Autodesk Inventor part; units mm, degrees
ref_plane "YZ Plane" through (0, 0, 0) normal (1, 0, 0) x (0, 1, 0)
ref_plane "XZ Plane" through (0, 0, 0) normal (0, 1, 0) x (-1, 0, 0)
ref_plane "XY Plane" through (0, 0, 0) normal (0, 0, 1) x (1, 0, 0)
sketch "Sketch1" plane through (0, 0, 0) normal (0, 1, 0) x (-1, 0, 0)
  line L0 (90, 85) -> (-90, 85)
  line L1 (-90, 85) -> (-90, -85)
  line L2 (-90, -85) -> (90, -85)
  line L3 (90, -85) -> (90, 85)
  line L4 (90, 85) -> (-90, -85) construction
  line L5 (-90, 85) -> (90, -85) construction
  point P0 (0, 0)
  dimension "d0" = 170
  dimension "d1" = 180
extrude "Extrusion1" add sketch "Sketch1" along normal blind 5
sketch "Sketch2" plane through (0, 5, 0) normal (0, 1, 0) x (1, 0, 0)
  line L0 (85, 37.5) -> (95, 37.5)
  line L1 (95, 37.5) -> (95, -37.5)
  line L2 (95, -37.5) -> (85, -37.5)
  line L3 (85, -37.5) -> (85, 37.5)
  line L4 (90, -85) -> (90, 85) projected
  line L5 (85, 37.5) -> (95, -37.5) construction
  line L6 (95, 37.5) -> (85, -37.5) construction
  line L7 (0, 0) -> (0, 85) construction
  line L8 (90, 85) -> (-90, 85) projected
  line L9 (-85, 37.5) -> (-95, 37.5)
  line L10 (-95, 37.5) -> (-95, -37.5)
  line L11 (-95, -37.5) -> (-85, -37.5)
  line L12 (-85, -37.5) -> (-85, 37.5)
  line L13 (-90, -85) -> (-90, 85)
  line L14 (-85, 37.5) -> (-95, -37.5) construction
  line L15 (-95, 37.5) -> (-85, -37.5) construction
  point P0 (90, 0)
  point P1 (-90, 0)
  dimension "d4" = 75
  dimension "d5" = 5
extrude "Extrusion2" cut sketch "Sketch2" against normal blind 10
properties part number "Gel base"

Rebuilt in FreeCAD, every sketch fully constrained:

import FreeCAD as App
import Part
import Sketcher

V = App.Vector


def add_polygon(sketch, points):
    """Adds a closed chain of lines whose ends are joined by coincident constraints."""
    first, n = sketch.GeometryCount, len(points)
    for a, b in zip(points, points[1:] + points[:1]):
        sketch.addGeometry(Part.LineSegment(App.Vector(*a, 0), App.Vector(*b, 0)), False)
    for i in range(n):
        sketch.addConstraint(Sketcher.Constraint("Coincident", first + i, 2, first + (i + 1) % n, 1))

doc = App.newDocument("Part")
body = doc.addObject("PartDesign::Body", "Body")

# Sketch on XZ plane
sketch1 = doc.addObject("Sketcher::SketchObject", "Sketch")
body.addObject(sketch1)
sketch1.AttachmentSupport = (doc.XZ_Plane, [""])
sketch1.MapMode = "FlatFace"
add_polygon(sketch1, [(-90, -85), (-90, 85), (90, 85), (90, -85)])  # lines 0-3
sketch1.addConstraint(Sketcher.Constraint("Vertical", 0))
sketch1.addConstraint(Sketcher.Constraint("Horizontal", 1))
sketch1.addConstraint(Sketcher.Constraint("Vertical", 2))
sketch1.addConstraint(Sketcher.Constraint("Horizontal", 3))
sketch1.addConstraint(Sketcher.Constraint("Symmetric", 0, 2, 2, 2, -1, 1))
sketch1.addConstraint(Sketcher.Constraint("DistanceX", 1, 1, 1, 2, 180.0))
sketch1.addConstraint(Sketcher.Constraint("DistanceY", 0, 1, 0, 2, 170.0))
pad1 = doc.addObject("PartDesign::Pad", "Pad")
body.addObject(pad1)
pad1.Profile = sketch1
pad1.Length = 5
pad1.Reversed = True

# Sketch on XZ plane
sketch2 = doc.addObject("Sketcher::SketchObject", "Sketch001")
body.addObject(sketch2)
sketch2.AttachmentSupport = (doc.XZ_Plane, [""])
sketch2.MapMode = "FlatFace"
sketch2.AttachmentOffset = App.Placement(V(0, 0, -5), App.Rotation())
add_polygon(sketch2, [(-85, -38), (-95, -38), (-95, 38), (-85, 38)])  # lines 0-3
add_polygon(sketch2, [(85, -38), (85, 38), (95, 38), (95, -38)])  # lines 4-7
sketch2.addConstraint(Sketcher.Constraint("Horizontal", 0))
sketch2.addConstraint(Sketcher.Constraint("Vertical", 1))
sketch2.addConstraint(Sketcher.Constraint("Horizontal", 2))
sketch2.addConstraint(Sketcher.Constraint("Vertical", 3))
sketch2.addConstraint(Sketcher.Constraint("Vertical", 4))
sketch2.addConstraint(Sketcher.Constraint("Horizontal", 5))
sketch2.addConstraint(Sketcher.Constraint("Vertical", 6))
sketch2.addConstraint(Sketcher.Constraint("Horizontal", 7))
sketch2.addConstraint(Sketcher.Constraint("Symmetric", 3, 2, 4, 2, -1, 1))
sketch2.addConstraint(Sketcher.Constraint("Symmetric", 1, 2, 6, 2, -1, 1))
sketch2.addConstraint(Sketcher.Constraint("Horizontal", 2, 2, 4, 2))
sketch2.addConstraint(Sketcher.Constraint("DistanceY", 1, 1, 1, 2, 75.0))
sketch2.addConstraint(Sketcher.Constraint("DistanceX", 0, 2, 0, 1, 10.0))
sketch2.addConstraint(Sketcher.Constraint("DistanceX", 0, 2, -1, 1, 95.0))
pocket1 = doc.addObject("PartDesign::Pocket", "Pocket")
body.addObject(pocket1)
pocket1.Profile = sketch2
pocket1.Length = 10
pocket1.Reversed = True

doc.recompute()
